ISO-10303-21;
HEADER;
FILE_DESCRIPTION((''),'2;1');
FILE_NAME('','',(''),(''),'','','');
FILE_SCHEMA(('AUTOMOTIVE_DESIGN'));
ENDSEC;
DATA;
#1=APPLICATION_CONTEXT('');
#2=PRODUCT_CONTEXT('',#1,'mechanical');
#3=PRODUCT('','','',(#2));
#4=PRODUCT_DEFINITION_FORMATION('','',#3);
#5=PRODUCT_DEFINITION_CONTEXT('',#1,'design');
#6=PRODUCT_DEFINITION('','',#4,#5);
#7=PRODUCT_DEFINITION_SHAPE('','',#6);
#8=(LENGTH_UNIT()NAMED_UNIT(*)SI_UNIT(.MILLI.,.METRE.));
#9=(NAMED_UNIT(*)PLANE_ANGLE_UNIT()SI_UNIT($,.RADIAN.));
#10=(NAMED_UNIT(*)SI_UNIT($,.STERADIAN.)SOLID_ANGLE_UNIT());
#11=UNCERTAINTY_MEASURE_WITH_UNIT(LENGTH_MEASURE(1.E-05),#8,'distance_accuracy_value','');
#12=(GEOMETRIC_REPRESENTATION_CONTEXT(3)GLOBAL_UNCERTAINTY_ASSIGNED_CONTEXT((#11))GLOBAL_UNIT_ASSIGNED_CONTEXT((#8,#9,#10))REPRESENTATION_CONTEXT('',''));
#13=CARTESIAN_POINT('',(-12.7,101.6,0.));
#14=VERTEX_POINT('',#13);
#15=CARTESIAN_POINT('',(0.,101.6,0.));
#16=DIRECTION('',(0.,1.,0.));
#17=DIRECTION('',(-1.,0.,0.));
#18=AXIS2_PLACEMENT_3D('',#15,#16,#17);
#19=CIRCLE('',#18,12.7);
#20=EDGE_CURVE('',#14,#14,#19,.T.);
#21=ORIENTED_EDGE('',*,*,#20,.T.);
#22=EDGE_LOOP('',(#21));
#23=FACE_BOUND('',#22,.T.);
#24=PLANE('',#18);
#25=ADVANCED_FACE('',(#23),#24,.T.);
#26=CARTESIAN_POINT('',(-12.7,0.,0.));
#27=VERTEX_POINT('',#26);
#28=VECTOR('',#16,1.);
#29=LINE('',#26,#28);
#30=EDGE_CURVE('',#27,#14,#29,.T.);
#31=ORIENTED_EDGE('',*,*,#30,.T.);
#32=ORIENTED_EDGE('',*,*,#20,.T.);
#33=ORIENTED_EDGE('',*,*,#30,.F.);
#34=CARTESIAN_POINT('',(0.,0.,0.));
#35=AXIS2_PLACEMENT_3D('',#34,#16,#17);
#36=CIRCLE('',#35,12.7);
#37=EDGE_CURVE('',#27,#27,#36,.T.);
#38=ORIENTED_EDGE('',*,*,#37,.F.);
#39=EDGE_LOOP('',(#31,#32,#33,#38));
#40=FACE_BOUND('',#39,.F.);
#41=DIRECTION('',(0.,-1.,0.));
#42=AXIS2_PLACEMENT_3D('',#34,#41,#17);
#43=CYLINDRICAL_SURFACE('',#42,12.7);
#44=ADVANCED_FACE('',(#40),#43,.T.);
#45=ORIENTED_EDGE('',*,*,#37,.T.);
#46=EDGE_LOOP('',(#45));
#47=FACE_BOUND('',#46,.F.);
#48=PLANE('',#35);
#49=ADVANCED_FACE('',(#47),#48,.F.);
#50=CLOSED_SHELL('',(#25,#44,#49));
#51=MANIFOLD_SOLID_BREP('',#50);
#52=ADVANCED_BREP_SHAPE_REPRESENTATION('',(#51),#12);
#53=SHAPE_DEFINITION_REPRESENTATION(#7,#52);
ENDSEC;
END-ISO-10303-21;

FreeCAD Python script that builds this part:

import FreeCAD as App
import Part
import Sketcher
Q = App.Units.Quantity

doc = App.newDocument("Part")
body = doc.addObject("PartDesign::Body", "Body")

sketch1 = body.newObject("Sketcher::SketchObject", "Sketch")
sketch1.AttachmentSupport = (doc.getObject("XZ_Plane"), [""])
sketch1.MapMode = "FlatFace"
sketch1.addGeometry(Part.Circle(App.Vector(0, 0, 0), App.Vector(0, 0, 1), 13), False)
sketch1.addConstraint(Sketcher.Constraint("Coincident", 0, 3, -1, 1))
sketch1.addConstraint(Sketcher.Constraint("Diameter", 0, Q("1 in")))
pad1 = body.newObject("PartDesign::Pad", "Pad")
pad1.Profile = sketch1
pad1.Length = Q("4 in")
pad1.Reversed = True

doc.recompute()
